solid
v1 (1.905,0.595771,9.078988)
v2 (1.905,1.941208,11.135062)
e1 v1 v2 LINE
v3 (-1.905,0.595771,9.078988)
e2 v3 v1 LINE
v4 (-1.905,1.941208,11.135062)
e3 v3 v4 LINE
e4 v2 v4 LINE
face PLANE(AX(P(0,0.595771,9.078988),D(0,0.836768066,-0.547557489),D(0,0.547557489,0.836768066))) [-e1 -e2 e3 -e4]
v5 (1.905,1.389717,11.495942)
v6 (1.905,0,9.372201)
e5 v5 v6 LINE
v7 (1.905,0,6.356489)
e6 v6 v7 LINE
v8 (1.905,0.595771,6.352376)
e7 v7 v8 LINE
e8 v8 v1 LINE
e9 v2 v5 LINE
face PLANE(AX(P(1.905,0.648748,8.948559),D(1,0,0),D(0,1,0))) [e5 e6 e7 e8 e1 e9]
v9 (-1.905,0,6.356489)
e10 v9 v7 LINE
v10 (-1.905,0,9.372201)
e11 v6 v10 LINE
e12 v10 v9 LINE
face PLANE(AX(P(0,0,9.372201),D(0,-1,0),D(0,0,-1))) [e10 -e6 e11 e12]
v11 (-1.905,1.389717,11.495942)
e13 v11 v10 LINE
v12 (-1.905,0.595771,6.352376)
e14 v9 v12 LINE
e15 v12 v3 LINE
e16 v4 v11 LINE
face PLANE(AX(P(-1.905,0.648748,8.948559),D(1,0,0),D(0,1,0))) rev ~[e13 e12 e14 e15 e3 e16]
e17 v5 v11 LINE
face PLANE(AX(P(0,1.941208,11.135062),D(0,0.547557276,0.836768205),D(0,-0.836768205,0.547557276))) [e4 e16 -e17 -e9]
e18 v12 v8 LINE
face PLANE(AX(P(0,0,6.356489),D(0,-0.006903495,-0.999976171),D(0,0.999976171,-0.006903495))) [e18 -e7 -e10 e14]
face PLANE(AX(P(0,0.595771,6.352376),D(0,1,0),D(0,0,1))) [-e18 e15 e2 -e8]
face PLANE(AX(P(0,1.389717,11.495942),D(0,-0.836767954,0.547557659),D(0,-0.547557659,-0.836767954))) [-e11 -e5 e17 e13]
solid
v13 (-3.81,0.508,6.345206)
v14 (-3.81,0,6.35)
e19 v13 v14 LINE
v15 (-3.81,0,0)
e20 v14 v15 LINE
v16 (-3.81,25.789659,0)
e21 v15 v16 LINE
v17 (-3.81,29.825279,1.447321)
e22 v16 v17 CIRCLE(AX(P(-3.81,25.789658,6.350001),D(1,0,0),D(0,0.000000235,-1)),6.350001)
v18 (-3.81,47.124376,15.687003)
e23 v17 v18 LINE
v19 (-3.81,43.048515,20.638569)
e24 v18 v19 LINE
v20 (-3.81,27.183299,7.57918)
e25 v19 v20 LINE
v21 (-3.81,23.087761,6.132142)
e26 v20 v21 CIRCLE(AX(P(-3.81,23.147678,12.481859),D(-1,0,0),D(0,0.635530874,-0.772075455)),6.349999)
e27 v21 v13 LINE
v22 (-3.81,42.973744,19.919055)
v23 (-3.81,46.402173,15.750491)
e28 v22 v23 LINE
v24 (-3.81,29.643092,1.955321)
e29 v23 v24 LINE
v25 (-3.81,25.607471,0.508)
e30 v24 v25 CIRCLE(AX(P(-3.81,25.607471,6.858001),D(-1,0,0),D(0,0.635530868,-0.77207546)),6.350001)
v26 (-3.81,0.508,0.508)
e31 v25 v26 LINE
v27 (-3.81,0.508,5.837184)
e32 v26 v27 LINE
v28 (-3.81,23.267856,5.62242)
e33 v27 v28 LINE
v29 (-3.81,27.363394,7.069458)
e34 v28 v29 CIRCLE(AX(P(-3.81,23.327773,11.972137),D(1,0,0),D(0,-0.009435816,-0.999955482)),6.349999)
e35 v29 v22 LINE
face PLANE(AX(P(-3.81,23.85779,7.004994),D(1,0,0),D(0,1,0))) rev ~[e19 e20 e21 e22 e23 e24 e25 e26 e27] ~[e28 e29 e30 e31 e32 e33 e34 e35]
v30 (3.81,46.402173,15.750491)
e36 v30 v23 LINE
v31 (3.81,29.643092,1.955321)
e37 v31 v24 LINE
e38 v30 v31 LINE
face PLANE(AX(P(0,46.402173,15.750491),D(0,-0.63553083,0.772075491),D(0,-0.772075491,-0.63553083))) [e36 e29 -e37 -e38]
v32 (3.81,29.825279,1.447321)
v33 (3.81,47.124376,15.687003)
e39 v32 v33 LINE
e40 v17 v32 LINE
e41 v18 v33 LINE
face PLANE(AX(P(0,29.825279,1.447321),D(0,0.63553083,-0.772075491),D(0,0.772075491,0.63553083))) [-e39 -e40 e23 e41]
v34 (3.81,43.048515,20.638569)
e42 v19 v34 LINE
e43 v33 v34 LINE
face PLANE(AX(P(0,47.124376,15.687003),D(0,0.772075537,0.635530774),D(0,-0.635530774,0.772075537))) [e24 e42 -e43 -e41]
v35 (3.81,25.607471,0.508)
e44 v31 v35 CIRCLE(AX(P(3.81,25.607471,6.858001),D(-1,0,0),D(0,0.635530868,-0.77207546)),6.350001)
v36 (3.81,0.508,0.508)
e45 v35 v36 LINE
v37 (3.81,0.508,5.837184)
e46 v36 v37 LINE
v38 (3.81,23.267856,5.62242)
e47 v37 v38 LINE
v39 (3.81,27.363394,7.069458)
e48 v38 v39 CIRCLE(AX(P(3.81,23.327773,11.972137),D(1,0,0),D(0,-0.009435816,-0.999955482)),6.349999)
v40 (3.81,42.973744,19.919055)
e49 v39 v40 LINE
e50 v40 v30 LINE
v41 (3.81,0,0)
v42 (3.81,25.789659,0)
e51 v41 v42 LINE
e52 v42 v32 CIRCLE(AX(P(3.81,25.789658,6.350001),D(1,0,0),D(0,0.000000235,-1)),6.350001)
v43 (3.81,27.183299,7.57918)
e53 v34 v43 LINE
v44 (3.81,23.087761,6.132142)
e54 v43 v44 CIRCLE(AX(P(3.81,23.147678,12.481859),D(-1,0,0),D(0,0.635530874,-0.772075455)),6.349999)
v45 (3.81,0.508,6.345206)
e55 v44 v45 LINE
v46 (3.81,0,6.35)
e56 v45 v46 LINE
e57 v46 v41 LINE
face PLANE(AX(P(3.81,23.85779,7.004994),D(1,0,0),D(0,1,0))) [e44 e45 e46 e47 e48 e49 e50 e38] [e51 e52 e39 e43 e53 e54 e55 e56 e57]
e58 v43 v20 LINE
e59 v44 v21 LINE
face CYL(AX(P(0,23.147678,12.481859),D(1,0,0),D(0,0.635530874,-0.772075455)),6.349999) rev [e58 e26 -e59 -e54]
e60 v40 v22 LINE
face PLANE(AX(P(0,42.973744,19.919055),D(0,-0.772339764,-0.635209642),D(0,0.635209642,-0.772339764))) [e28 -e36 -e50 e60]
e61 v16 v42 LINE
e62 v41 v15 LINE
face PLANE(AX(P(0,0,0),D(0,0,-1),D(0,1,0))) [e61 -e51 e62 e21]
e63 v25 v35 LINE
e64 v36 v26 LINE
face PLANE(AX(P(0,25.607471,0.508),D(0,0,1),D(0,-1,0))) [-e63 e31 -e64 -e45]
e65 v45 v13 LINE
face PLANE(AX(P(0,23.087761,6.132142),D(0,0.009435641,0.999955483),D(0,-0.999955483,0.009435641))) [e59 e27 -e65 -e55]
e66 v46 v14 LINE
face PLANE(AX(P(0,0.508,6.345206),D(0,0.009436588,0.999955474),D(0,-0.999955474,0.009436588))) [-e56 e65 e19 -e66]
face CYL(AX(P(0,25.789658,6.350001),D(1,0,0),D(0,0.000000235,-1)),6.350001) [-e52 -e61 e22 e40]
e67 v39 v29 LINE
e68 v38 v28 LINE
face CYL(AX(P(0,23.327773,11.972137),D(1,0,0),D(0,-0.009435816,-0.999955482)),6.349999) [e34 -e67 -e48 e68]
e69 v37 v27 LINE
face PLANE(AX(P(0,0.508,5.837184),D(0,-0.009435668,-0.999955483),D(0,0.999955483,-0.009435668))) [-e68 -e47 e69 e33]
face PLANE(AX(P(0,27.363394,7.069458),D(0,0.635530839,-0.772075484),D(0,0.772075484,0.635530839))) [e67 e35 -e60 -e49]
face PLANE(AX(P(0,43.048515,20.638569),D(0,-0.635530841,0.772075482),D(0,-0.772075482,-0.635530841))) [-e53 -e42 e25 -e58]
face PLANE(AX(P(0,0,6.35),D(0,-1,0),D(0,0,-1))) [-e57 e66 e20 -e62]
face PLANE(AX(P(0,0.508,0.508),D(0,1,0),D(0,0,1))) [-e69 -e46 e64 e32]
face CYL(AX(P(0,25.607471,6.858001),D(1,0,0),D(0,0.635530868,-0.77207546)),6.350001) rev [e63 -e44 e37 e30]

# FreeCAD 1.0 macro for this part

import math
import FreeCAD as App
import Part
import Sketcher
Q = App.Units.Quantity

doc = App.newDocument("Part")
params = doc.addObject("Spreadsheet::Sheet", "Params")
for row, (alias, value) in enumerate([
    ("sketch1_radius", "0.25 in"),
    ("pad1_length", "0.3 in"),
    ("pad2_length", "0.15 in"),
], start=1):
    params.set(f"A{row}", alias)
    params.set(f"B{row}", "=" + value)
    params.setAlias(f"B{row}", alias)

body = doc.addObject("PartDesign::Body", "Body")

# Sketch on YZ plane
sketch1 = body.newObject("Sketcher::SketchObject", "Sketch")
sketch1.AttachmentSupport = (doc.getObject("YZ_Plane"), [""])
sketch1.MapMode = "FlatFace"
sketch1.addGeometry(Part.LineSegment(App.Vector(0, 0, 0), App.Vector(25.8, 0, 0)), False)
sketch1.addGeometry(Part.ArcOfCircle(Part.Circle(App.Vector(25.8, 6.4, 0), App.Vector(0, 0, 1), 6.4), math.radians(-90), math.radians(-51)), False)
sketch1.addGeometry(Part.LineSegment(App.Vector(29.8, 1.4, 0), App.Vector(47.1, 15.7, 0)), False)
sketch1.addGeometry(Part.LineSegment(App.Vector(47.1, 15.7, 0), App.Vector(43, 20.6, 0)), False)
sketch1.addGeometry(Part.LineSegment(App.Vector(43, 20.6, 0), App.Vector(27.2, 7.6, 0)), False)
sketch1.addGeometry(Part.ArcOfCircle(Part.Circle(App.Vector(23.1, 12.5, 0), App.Vector(0, 0, 1), 6.3), math.radians(-91), math.radians(-51)), False)
sketch1.addGeometry(Part.LineSegment(App.Vector(23.1, 6.1, 0), App.Vector(0.5, 6.3, 0)), False)
sketch1.addGeometry(Part.LineSegment(App.Vector(0.5, 6.3, 0), App.Vector(0, 6.3, 0)), False)
sketch1.addGeometry(Part.LineSegment(App.Vector(0, 6.3, 0), App.Vector(0, 0, 0)), False)
sketch1.addGeometry(Part.ArcOfCircle(Part.Circle(App.Vector(25.6, 6.9, 0), App.Vector(0, 0, 1), 6.4), math.radians(-90), math.radians(-51)), False)
sketch1.addGeometry(Part.LineSegment(App.Vector(25.6, 0.5, 0), App.Vector(0.5, 0.5, 0)), False)
sketch1.addGeometry(Part.LineSegment(App.Vector(0.5, 0.5, 0), App.Vector(0.5, 5.8, 0)), False)
sketch1.addGeometry(Part.LineSegment(App.Vector(0.5, 5.8, 0), App.Vector(23.3, 5.6, 0)), False)
sketch1.addGeometry(Part.ArcOfCircle(Part.Circle(App.Vector(23.3, 12, 0), App.Vector(0, 0, 1), 6.3), math.radians(-91), math.radians(-51)), False)
sketch1.addGeometry(Part.LineSegment(App.Vector(27.4, 7.1, 0), App.Vector(43, 19.9, 0)), False)
sketch1.addGeometry(Part.LineSegment(App.Vector(43, 19.9, 0), App.Vector(46.4, 15.8, 0)), False)
sketch1.addGeometry(Part.LineSegment(App.Vector(46.4, 15.8, 0), App.Vector(29.6, 2, 0)), False)
sketch1.addConstraint(Sketcher.Constraint("Tangent", 0, 2, 1, 1))
sketch1.addConstraint(Sketcher.Constraint("Tangent", 1, 2, 2, 1))
sketch1.addConstraint(Sketcher.Constraint("Coincident", 2, 2, 3, 1))
sketch1.addConstraint(Sketcher.Constraint("Coincident", 3, 2, 4, 1))
sketch1.addConstraint(Sketcher.Constraint("Tangent", 4, 2, 5, 2))
sketch1.addConstraint(Sketcher.Constraint("Tangent", 5, 1, 6, 1))
sketch1.addConstraint(Sketcher.Constraint("Coincident", 6, 2, 7, 1))
sketch1.addConstraint(Sketcher.Constraint("Coincident", 7, 2, 8, 1))
sketch1.addConstraint(Sketcher.Constraint("Coincident", 8, 2, 0, 1))
sketch1.addConstraint(Sketcher.Constraint("Tangent", 9, 1, 10, 1))
sketch1.addConstraint(Sketcher.Constraint("Coincident", 10, 2, 11, 1))
sketch1.addConstraint(Sketcher.Constraint("Coincident", 11, 2, 12, 1))
sketch1.addConstraint(Sketcher.Constraint("Tangent", 12, 2, 13, 1))
sketch1.addConstraint(Sketcher.Constraint("Tangent", 13, 2, 14, 1))
sketch1.addConstraint(Sketcher.Constraint("Coincident", 14, 2, 15, 1))
sketch1.addConstraint(Sketcher.Constraint("Coincident", 15, 2, 16, 1))
sketch1.addConstraint(Sketcher.Constraint("Tangent", 16, 2, 9, 2))
sketch1.addConstraint(Sketcher.Constraint("Horizontal", 0))
sketch1.addConstraint(Sketcher.Constraint("Vertical", 8))
sketch1.addConstraint(Sketcher.Constraint("Horizontal", 10))
sketch1.addConstraint(Sketcher.Constraint("Vertical", 11))
sketch1.addConstraint(Sketcher.Constraint("Coincident", 8, 2, -1, 1))
sketch1.addConstraint(Sketcher.Constraint("Equal", 1, 5))
sketch1.addConstraint(Sketcher.Constraint("Equal", 5, 9))
sketch1.addConstraint(Sketcher.Constraint("Equal", 9, 13))
sketch1.addConstraint(Sketcher.Constraint("Perpendicular", 2, 3))
sketch1.addConstraint(Sketcher.Constraint("Perpendicular", 3, 4))
sketch1.addConstraint(Sketcher.Constraint("Parallel", 6, 7))
sketch1.addConstraint(Sketcher.Constraint("Parallel", 7, 12))
sketch1.addConstraint(Sketcher.Constraint("Parallel", 4, 14))
sketch1.addConstraint(Sketcher.Constraint("Parallel", 14, 16))
sketch1.addConstraint(Sketcher.Constraint("Horizontal", 1, 3, 7, 2))
sketch1.addConstraint(Sketcher.Constraint("Vertical", 6, 2, 10, 2))
sketch1.addConstraint(Sketcher.Constraint("Radius", 1, Q("0.25 in")))
sketch1.addConstraint(Sketcher.Constraint("DistanceY", -1, 1, 9, 3, Q("0.27 in")))
sketch1.addConstraint(Sketcher.Constraint("DistanceX", -1, 1, 6, 2, Q("0.02 in")))
sketch1.addConstraint(Sketcher.Constraint("DistanceX", 0, 1, 0, 2, 25.789659))
sketch1.addConstraint(Sketcher.Constraint("DistanceX", 10, 2, 10, 1, 25.099471))
sketch1.addConstraint(Sketcher.Constraint("DistanceX", -1, 1, 4, 2, 27.183299))
sketch1.addConstraint(Sketcher.Constraint("DistanceX", 5, 3, 1, 2, 6.677601))
sketch1.addConstraint(Sketcher.Constraint("DistanceX", 12, 2, 1, 3, 2.521802))
sketch1.addConstraint(Sketcher.Constraint("Distance", 3, 6.413318))
sketch1.addConstraint(Sketcher.Constraint("Distance", 4, 20.548789))
sketch1.addConstraint(Sketcher.Constraint("Distance", 15, 5.397319))
sketch1.addConstraint(Sketcher.Constraint("Distance", 16, 21.706532))
sketch1.addConstraint(Sketcher.Constraint("DistanceX", 14, 2, 3, 2, 0.074771))
sketch1.setExpression("Constraints[33]", "Params.sketch1_radius")
pad1 = body.newObject("PartDesign::Pad", "Pad")
pad1.Profile = sketch1
pad1.setExpression("Length", "Params.pad1_length")
pad1.Midplane = True
body2 = doc.addObject("PartDesign::Body", "Body001")

# Sketch on YZ plane
sketch2 = body2.newObject("Sketcher::SketchObject", "Sketch001")
sketch2.AttachmentSupport = (doc.getObject("YZ_Plane001"), [""])
sketch2.MapMode = "FlatFace"
sketch2.addGeometry(Part.LineSegment(App.Vector(0, 9.4, 0), App.Vector(0, 6.4, 0)), False)
sketch2.addGeometry(Part.LineSegment(App.Vector(0, 6.4, 0), App.Vector(0.6, 6.4, 0)), False)
sketch2.addGeometry(Part.LineSegment(App.Vector(0.6, 6.4, 0), App.Vector(0.6, 9.1, 0)), False)
sketch2.addGeometry(Part.LineSegment(App.Vector(0.6, 9.1, 0), App.Vector(1.9, 11.1, 0)), False)
sketch2.addGeometry(Part.LineSegment(App.Vector(1.9, 11.1, 0), App.Vector(1.4, 11.5, 0)), False)
sketch2.addGeometry(Part.LineSegment(App.Vector(1.4, 11.5, 0), App.Vector(0, 9.4, 0)), False)
sketch2.addConstraint(Sketcher.Constraint("Coincident", 0, 2, 1, 1))
sketch2.addConstraint(Sketcher.Constraint("Coincident", 1, 2, 2, 1))
sketch2.addConstraint(Sketcher.Constraint("Coincident", 2, 2, 3, 1))
sketch2.addConstraint(Sketcher.Constraint("Coincident", 3, 2, 4, 1))
sketch2.addConstraint(Sketcher.Constraint("Coincident", 4, 2, 5, 1))
sketch2.addConstraint(Sketcher.Constraint("Coincident", 5, 2, 0, 1))
sketch2.addConstraint(Sketcher.Constraint("Vertical", 0))
sketch2.addConstraint(Sketcher.Constraint("Vertical", 2))
sketch2.addConstraint(Sketcher.Constraint("PointOnObject", 0, 2, -2))
sketch2.addConstraint(Sketcher.Constraint("Perpendicular", 3, 4))
sketch2.addConstraint(Sketcher.Constraint("Perpendicular", 4, 5))
sketch2.addConstraint(Sketcher.Constraint("DistanceY", -1, 1, 5, 2, 9.372201))
sketch2.addConstraint(Sketcher.Constraint("DistanceY", 0, 2, 2, 2, 2.722499))
sketch2.addConstraint(Sketcher.Constraint("Distance", 3, 2.457161))
sketch2.addConstraint(Sketcher.Constraint("Distance", 5, 2.538029))
sketch2.addConstraint(Sketcher.Constraint("DistanceY", 0, 2, 0, 1, 3.015712))
sketch2.addConstraint(Sketcher.Constraint("DistanceY", 2, 1, 2, 2, 2.726612))
sketch2.addConstraint(Sketcher.Constraint("DistanceX", -1, 1, 1, 2, 0.595771))
pad2 = body2.newObject("PartDesign::Pad", "Pad001")
pad2.Profile = sketch2
pad2.setExpression("Length", "Params.pad2_length")
pad2.Midplane = True

doc.recompute()
